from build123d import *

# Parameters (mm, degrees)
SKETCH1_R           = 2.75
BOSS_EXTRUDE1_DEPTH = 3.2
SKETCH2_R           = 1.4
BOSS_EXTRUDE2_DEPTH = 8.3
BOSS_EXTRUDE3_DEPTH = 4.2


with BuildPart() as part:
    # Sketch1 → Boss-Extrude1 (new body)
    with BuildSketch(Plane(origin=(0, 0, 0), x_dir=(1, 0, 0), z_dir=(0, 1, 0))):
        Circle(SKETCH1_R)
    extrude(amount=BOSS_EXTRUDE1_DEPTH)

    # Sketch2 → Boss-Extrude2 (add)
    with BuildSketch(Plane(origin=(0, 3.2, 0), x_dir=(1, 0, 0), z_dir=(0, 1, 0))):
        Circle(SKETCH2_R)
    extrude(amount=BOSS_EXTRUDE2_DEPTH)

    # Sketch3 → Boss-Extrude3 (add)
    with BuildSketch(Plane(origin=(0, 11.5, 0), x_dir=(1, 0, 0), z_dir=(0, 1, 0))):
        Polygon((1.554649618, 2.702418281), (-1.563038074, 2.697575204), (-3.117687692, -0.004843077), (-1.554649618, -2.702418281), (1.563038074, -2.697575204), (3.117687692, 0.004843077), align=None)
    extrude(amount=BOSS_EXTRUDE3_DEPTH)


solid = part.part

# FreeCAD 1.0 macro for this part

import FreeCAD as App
import Part
import Sketcher
from FreeCAD import Vector


def add_polygon(sketch, points):
    """Adds a closed chain of lines whose ends are joined by coincident constraints."""
    first, n = sketch.GeometryCount, len(points)
    for a, b in zip(points, points[1:] + points[:1]):
        sketch.addGeometry(Part.LineSegment(App.Vector(*a, 0), App.Vector(*b, 0)), False)
    for i in range(n):
        sketch.addConstraint(Sketcher.Constraint("Coincident", first + i, 2, first + (i + 1) % n, 1))

doc = App.newDocument("Part")
body = doc.addObject("PartDesign::Body", "Body")

# Sketch on XZ plane
sketch1 = body.newObject("Sketcher::SketchObject", "Sketch")
sketch1.AttachmentSupport = (doc.getObject("XZ_Plane"), [""])
sketch1.MapMode = "FlatFace"
sketch1.addGeometry(Part.Circle(Vector(0, 0, 0), Vector(0, 0, 1), 2.8), False)
sketch1.addConstraint([
    Sketcher.Constraint("Coincident", 0, 3, -1, 1),
    Sketcher.Constraint("Diameter", 0, 5.5),
])
pad1 = body.newObject("PartDesign::Pad", "Pad")
pad1.Profile = sketch1
pad1.Length = 3.2
pad1.Reversed = True

# Sketch on XZ plane
sketch2 = body.newObject("Sketcher::SketchObject", "Sketch001")
sketch2.AttachmentSupport = (doc.getObject("XZ_Plane"), [""])
sketch2.MapMode = "FlatFace"
sketch2.AttachmentOffset = App.Placement(Vector(0, 0, -3.2), App.Rotation())
sketch2.addGeometry(Part.Circle(Vector(0, 0, 0), Vector(0, 0, 1), 1.4), False)
sketch2.addConstraint([
    Sketcher.Constraint("Coincident", 0, 3, -1, 1),
    Sketcher.Constraint("Diameter", 0, 2.8),
])
pad2 = body.newObject("PartDesign::Pad", "Pad001")
pad2.Profile = sketch2
pad2.Length = 8.3
pad2.Reversed = True

# Sketch on XZ plane
sketch3 = body.newObject("Sketcher::SketchObject", "Sketch002")
sketch3.AttachmentSupport = (doc.getObject("XZ_Plane"), [""])
sketch3.MapMode = "FlatFace"
sketch3.AttachmentOffset = App.Placement(Vector(0, 0, -11.5), App.Rotation())
add_polygon(sketch3, [(1.6, -2.7), (-1.6, -2.7), (-3.1, 0), (-1.6, 2.7), (1.6, 2.7), (3.1, 0)])  # lines 0-5
sketch3.addConstraint([
    Sketcher.Constraint("Symmetric", 0, 2, 3, 2, -1, 1),
    Sketcher.Constraint("Symmetric", 1, 2, 4, 2, -1, 1),
    Sketcher.Constraint("Symmetric", 2, 2, 5, 2, -1, 1),
    Sketcher.Constraint("Equal", 0, 1),
    Sketcher.Constraint("Equal", 1, 2),
    Sketcher.Constraint("DistanceX", 2, 2, 5, 2, 3.109299),
    Sketcher.Constraint("Distance", 0, 3.117691),
    Sketcher.Constraint("DistanceY", -1, 1, 2, 2, 2.702418),
    Sketcher.Constraint("DistanceX", 1, 2, 0, 2, 1.55465),
])
pad3 = body.newObject("PartDesign::Pad", "Pad002")
pad3.Profile = sketch3
pad3.Length = 4.2
pad3.Reversed = True

doc.recompute()
